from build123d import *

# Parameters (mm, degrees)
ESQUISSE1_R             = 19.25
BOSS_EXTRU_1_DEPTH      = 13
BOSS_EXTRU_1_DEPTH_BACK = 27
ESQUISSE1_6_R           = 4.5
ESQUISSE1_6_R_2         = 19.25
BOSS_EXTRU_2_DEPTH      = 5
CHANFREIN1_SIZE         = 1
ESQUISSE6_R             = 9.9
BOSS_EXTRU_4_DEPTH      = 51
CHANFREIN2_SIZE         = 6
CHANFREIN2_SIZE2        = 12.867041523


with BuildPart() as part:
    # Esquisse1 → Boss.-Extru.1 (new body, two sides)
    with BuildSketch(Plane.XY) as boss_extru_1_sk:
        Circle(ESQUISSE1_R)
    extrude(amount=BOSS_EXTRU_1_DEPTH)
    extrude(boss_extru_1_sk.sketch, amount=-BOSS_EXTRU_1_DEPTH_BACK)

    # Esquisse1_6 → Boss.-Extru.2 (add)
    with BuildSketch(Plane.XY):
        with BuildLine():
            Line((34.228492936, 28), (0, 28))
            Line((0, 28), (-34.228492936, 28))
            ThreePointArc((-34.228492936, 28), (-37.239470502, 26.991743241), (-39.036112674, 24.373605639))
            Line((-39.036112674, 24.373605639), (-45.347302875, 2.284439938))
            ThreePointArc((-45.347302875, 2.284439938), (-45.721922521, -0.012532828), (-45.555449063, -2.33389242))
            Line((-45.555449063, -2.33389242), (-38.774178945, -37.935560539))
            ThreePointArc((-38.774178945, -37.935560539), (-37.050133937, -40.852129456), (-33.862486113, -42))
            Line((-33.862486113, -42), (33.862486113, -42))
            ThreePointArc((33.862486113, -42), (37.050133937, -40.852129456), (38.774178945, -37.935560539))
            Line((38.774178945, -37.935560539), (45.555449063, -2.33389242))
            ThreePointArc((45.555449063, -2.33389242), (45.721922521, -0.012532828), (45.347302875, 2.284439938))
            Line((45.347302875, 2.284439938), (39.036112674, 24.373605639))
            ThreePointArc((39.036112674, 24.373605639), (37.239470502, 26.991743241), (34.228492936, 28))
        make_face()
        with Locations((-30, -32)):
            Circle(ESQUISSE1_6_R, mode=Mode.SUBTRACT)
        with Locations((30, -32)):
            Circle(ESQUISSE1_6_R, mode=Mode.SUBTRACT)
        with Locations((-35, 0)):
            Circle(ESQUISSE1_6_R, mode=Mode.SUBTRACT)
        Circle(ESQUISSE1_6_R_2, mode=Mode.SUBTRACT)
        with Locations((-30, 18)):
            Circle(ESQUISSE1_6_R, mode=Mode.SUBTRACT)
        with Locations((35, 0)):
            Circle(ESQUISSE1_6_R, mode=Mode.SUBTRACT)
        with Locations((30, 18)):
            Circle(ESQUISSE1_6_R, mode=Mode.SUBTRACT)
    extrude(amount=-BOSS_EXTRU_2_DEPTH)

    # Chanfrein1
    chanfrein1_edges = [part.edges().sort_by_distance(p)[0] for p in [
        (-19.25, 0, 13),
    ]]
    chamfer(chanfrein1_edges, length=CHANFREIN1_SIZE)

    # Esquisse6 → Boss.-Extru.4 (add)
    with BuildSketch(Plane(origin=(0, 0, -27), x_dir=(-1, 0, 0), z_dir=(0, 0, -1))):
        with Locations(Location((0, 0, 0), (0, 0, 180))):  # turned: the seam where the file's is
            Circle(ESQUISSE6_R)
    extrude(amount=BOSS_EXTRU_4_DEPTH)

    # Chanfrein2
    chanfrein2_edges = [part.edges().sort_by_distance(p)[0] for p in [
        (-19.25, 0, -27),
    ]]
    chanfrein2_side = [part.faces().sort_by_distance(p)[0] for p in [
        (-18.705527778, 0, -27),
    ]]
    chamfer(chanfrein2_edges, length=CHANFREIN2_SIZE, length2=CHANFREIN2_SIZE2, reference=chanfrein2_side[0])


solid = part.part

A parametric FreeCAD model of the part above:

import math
import FreeCAD as App
import Part
import Sketcher

V = App.Vector


def edges_at(feature, points):
    """Names of the edges that pass closest to the given points."""
    edges = feature.Shape.Edges
    near = lambda p: min(range(len(edges)), key=lambda i: edges[i].distToShape(Part.Vertex(*p))[0])
    return sorted({f"Edge{near(p) + 1}" for p in points})

doc = App.newDocument("Part")
body = doc.addObject("PartDesign::Body", "Body")

# Sketch on XY plane
sketch1 = body.newObject("Sketcher::SketchObject", "Sketch")
sketch1.AttachmentSupport = (doc.getObject("XY_Plane"), [""])
sketch1.MapMode = "FlatFace"
sketch1.addGeometry(Part.Circle(V(0, 0, 0), V(0, 0, 1), 19), False)
sketch1.addConstraint([
    Sketcher.Constraint("Coincident", 0, 3, -1, 1),
    Sketcher.Constraint("Diameter", 0, 38.5),
])
pad1 = body.newObject("PartDesign::Pad", "Pad")
pad1.Profile = sketch1
pad1.Type = "TwoLengths"
pad1.Length = 13
pad1.Length2 = 27

# Sketch on XY plane
sketch2 = body.newObject("Sketcher::SketchObject", "Sketch001")
sketch2.AttachmentSupport = (doc.getObject("XY_Plane"), [""])
sketch2.MapMode = "FlatFace"
sketch2.addGeometry([
    Part.LineSegment(V(34.2, 28, 0), V(-34.2, 28, 0)),  # 0
    Part.ArcOfCircle(Part.Circle(V(-34.2, 23, 0), V(0, 0, 1), 5), math.radians(90), math.radians(164)),  # 1
    Part.LineSegment(V(-39, 24.4, 0), V(-45.3, 2.3, 0)),  # 2
    Part.ArcOfCircle(Part.Circle(V(-35.7, -0.5, 0), V(0, 0, 1), 10), math.radians(164), math.radians(191)),  # 3
    Part.LineSegment(V(-45.6, -2.3, 0), V(-38.8, -37.9, 0)),  # 4
    Part.ArcOfCircle(Part.Circle(V(-33.9, -37, 0), V(0, 0, 1), 5), math.radians(-169), math.radians(-90)),  # 5
    Part.LineSegment(V(-33.9, -42, 0), V(33.9, -42, 0)),  # 6
    Part.ArcOfCircle(Part.Circle(V(33.9, -37, 0), V(0, 0, 1), 5), math.radians(-90), math.radians(-11)),  # 7
    Part.LineSegment(V(38.8, -37.9, 0), V(45.6, -2.3, 0)),  # 8
    Part.ArcOfCircle(Part.Circle(V(35.7, -0.5, 0), V(0, 0, 1), 10), math.radians(-11), math.radians(16)),  # 9
    Part.LineSegment(V(45.3, 2.3, 0), V(39, 24.4, 0)),  # 10
    Part.ArcOfCircle(Part.Circle(V(34.2, 23, 0), V(0, 0, 1), 5), math.radians(16), math.radians(90)),  # 11
    Part.Circle(V(-30, -32, 0), V(0, 0, 1), 4.5),  # 12
    Part.Circle(V(30, -32, 0), V(0, 0, 1), 4.5),  # 13
    Part.Circle(V(-35, 0, 0), V(0, 0, 1), 4.5),  # 14
    Part.Circle(V(-30, 18, 0), V(0, 0, 1), 4.5),  # 15
    Part.Circle(V(0, 0, 0), V(0, 0, 1), 19.2),  # 16
    Part.Circle(V(35, 0, 0), V(0, 0, 1), 4.5),  # 17
    Part.Circle(V(30, 18, 0), V(0, 0, 1), 4.5),  # 18
], False)
sketch2.addConstraint([
    Sketcher.Constraint("Tangent", 0, 2, 1, 1),
    Sketcher.Constraint("Tangent", 1, 2, 2, 1),
    Sketcher.Constraint("Tangent", 2, 2, 3, 1),
    Sketcher.Constraint("Tangent", 3, 2, 4, 1),
    Sketcher.Constraint("Tangent", 4, 2, 5, 1),
    Sketcher.Constraint("Tangent", 5, 2, 6, 1),
    Sketcher.Constraint("Tangent", 6, 2, 7, 1),
    Sketcher.Constraint("Tangent", 7, 2, 8, 1),
    Sketcher.Constraint("Tangent", 8, 2, 9, 1),
    Sketcher.Constraint("Tangent", 9, 2, 10, 1),
    Sketcher.Constraint("Tangent", 10, 2, 11, 1),
    Sketcher.Constraint("Tangent", 11, 2, 0, 1),
    Sketcher.Constraint("Horizontal", 0),
    Sketcher.Constraint("Horizontal", 6),
    Sketcher.Constraint("Coincident", 16, 3, -1, 1),
    Sketcher.Constraint("Equal", 1, 5),
    Sketcher.Constraint("Equal", 5, 7),
    Sketcher.Constraint("Equal", 3, 9),
    Sketcher.Constraint("Equal", 7, 11),
    Sketcher.Constraint("Equal", 12, 13),
    Sketcher.Constraint("Equal", 13, 14),
    Sketcher.Constraint("Equal", 14, 15),
    Sketcher.Constraint("Equal", 15, 17),
    Sketcher.Constraint("Equal", 17, 18),
    Sketcher.Constraint("Symmetric", 14, 3, 17, 3, -1, 1),
    Sketcher.Constraint("Symmetric", 3, 3, 9, 3, -2),
    Sketcher.Constraint("Symmetric", 12, 3, 13, 3, -2),
    Sketcher.Constraint("Symmetric", 15, 3, 18, 3, -2),
    Sketcher.Constraint("PointOnObject", 14, 3, -1),
    Sketcher.Constraint("Horizontal", 4, 2, 7, 2),
    Sketcher.Constraint("Horizontal", 2, 2, 9, 2),
    Sketcher.Constraint("Vertical", 12, 3, 15, 3),
    Sketcher.Constraint("Diameter", 12, 9.0),
    Sketcher.Constraint("Radius", 1, 5.0),
    Sketcher.Constraint("Radius", 3, 10.0),
    Sketcher.Constraint("Diameter", 16, 38.5),
    Sketcher.Constraint("DistanceY", -1, 1, 1, 3, 23.0),
    Sketcher.Constraint("DistanceY", 5, 3, -1, 1, 37.0),
    Sketcher.Constraint("DistanceX", 12, 3, -1, 1, 30.0),
    Sketcher.Constraint("DistanceY", 12, 3, -1, 1, 32.0),
    Sketcher.Constraint("DistanceX", 14, 3, -1, 1, 35.0),
    Sketcher.Constraint("DistanceY", -1, 1, 15, 3, 18.0),
    Sketcher.Constraint("DistanceY", 3, 2, 1, 2, 26.707498),
    Sketcher.Constraint("Distance", 2, 22.973079),
    Sketcher.Constraint("Distance", 4, 36.241749),
    Sketcher.Constraint("DistanceX", 0, 2, 0, 1, 68.456986),
])
pad2 = body.newObject("PartDesign::Pad", "Pad001")
pad2.Profile = sketch2
pad2.Length = 5
pad2.Reversed = True
doc.recompute()

chamfer = body.newObject("PartDesign::Chamfer", "Chamfer")
chamfer.Base = (pad2, edges_at(pad2, [(-19.25, 0, 13)]))
chamfer.Size = 1

# Sketch on XY plane
sketch3 = body.newObject("Sketcher::SketchObject", "Sketch002")
sketch3.AttachmentSupport = (doc.getObject("XY_Plane"), [""])
sketch3.MapMode = "FlatFace"
sketch3.AttachmentOffset = App.Placement(V(0, 0, -27), App.Rotation())
sketch3.addGeometry(Part.Circle(V(0, 0, 0), V(0, 0, 1), 10), False)
sketch3.addConstraint([
    Sketcher.Constraint("Coincident", 0, 3, -1, 1),
    Sketcher.Constraint("Diameter", 0, 19.8),
])
pad3 = body.newObject("PartDesign::Pad", "Pad002")
pad3.Profile = sketch3
pad3.Length = 51
pad3.Reversed = True
doc.recompute()

chamfer2 = body.newObject("PartDesign::Chamfer", "Chamfer001")
chamfer2.Base = (pad3, edges_at(pad3, [(-19.25, 0, -27)]))
chamfer2.ChamferType = "Two distances"
chamfer2.Size = 6
chamfer2.Size2 = 12.867042
chamfer2.FlipDirection = True

doc.recompute()
